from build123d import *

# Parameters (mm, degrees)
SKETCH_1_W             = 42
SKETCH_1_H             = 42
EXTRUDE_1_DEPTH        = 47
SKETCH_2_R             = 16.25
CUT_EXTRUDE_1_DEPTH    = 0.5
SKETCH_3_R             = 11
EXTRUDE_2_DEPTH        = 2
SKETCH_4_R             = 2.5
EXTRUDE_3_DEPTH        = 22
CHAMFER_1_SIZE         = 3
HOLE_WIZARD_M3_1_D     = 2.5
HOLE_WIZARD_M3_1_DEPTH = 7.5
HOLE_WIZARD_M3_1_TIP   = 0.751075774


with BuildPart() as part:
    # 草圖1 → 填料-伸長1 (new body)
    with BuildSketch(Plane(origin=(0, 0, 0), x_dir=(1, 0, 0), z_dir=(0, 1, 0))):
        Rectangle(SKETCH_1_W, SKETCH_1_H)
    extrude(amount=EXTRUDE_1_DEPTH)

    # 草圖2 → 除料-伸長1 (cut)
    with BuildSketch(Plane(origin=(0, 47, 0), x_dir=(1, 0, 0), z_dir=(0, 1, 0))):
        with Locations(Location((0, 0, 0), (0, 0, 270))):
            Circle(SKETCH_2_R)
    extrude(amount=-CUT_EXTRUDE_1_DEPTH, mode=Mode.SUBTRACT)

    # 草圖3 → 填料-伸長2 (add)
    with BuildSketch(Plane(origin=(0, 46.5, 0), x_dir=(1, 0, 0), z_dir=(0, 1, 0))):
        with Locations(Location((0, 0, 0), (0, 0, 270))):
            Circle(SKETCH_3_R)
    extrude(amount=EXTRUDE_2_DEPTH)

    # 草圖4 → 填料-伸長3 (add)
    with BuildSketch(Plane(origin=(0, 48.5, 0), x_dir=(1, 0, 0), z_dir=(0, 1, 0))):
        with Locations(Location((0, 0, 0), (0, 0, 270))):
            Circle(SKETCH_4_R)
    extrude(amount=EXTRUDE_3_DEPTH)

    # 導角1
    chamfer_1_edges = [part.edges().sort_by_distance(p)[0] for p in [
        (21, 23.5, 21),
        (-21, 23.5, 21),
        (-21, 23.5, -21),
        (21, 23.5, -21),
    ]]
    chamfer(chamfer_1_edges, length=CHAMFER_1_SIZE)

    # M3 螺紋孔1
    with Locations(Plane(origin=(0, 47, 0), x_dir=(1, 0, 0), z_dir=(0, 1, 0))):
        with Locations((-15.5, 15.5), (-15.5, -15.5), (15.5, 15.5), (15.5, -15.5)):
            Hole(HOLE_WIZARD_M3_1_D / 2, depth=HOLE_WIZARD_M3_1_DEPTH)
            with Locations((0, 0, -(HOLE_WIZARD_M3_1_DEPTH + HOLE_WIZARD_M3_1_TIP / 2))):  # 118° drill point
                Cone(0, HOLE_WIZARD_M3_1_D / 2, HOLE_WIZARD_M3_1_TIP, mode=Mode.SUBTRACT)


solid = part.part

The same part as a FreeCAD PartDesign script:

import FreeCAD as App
import Part
import Sketcher


def edges_at(feature, points):
    """Names of the edges that pass closest to the given points."""
    edges = feature.Shape.Edges
    near = lambda p: min(range(len(edges)), key=lambda i: edges[i].distToShape(Part.Vertex(*p))[0])
    return sorted({f"Edge{near(p) + 1}" for p in points})


def add_polygon(sketch, points):
    """Adds a closed chain of lines whose ends are joined by coincident constraints."""
    first, n = sketch.GeometryCount, len(points)
    for a, b in zip(points, points[1:] + points[:1]):
        sketch.addGeometry(Part.LineSegment(App.Vector(*a, 0), App.Vector(*b, 0)), False)
    for i in range(n):
        sketch.addConstraint(Sketcher.Constraint("Coincident", first + i, 2, first + (i + 1) % n, 1))

doc = App.newDocument("Part")
body = doc.addObject("PartDesign::Body", "Body")

sketch1 = doc.addObject("Sketcher::SketchObject", "Sketch")
body.addObject(sketch1)
sketch1.AttachmentSupport = (doc.XZ_Plane, [""])
sketch1.MapMode = "FlatFace"
add_polygon(sketch1, [(-21, -21), (-21, 21), (21, 21), (21, -21)])
sketch1.addConstraint([
    Sketcher.Constraint("Vertical", 0),
    Sketcher.Constraint("Horizontal", 1),
    Sketcher.Constraint("Vertical", 2),
    Sketcher.Constraint("Horizontal", 3),
    Sketcher.Constraint("Symmetric", 0, 2, 2, 2, -1, 1),
    Sketcher.Constraint("Equal", 3, 0),
    Sketcher.Constraint("DistanceX", 1, 1, 1, 2, 42.0),
])
pad1 = doc.addObject("PartDesign::Pad", "Pad")
body.addObject(pad1)
pad1.Profile = sketch1
pad1.Length = 47
pad1.Reversed = True

sketch2 = doc.addObject("Sketcher::SketchObject", "Sketch001")
body.addObject(sketch2)
sketch2.AttachmentSupport = (doc.XZ_Plane, [""])
sketch2.MapMode = "FlatFace"
sketch2.AttachmentOffset = App.Placement(App.Vector(0, 0, -47), App.Rotation())
sketch2.addGeometry(Part.Circle(App.Vector(0, 0, 0), App.Vector(0, 0, 1), 16), False)
sketch2.addConstraint([
    Sketcher.Constraint("Coincident", 0, 3, -1, 1),
    Sketcher.Constraint("Diameter", 0, 32.5),
])
pocket1 = doc.addObject("PartDesign::Pocket", "Pocket")
body.addObject(pocket1)
pocket1.Profile = sketch2
pocket1.Length = 0.5
pocket1.Reversed = True

sketch3 = doc.addObject("Sketcher::SketchObject", "Sketch002")
body.addObject(sketch3)
sketch3.AttachmentSupport = (doc.XZ_Plane, [""])
sketch3.MapMode = "FlatFace"
sketch3.AttachmentOffset = App.Placement(App.Vector(0, 0, -46.5), App.Rotation())
sketch3.addGeometry(Part.Circle(App.Vector(0, 0, 0), App.Vector(0, 0, 1), 11), False)
sketch3.addConstraint([
    Sketcher.Constraint("Coincident", 0, 3, -1, 1),
    Sketcher.Constraint("Diameter", 0, 22.0),
])
pad2 = doc.addObject("PartDesign::Pad", "Pad001")
body.addObject(pad2)
pad2.Profile = sketch3
pad2.Length = 2
pad2.Reversed = True

sketch4 = doc.addObject("Sketcher::SketchObject", "Sketch003")
body.addObject(sketch4)
sketch4.AttachmentSupport = (doc.XZ_Plane, [""])
sketch4.MapMode = "FlatFace"
sketch4.AttachmentOffset = App.Placement(App.Vector(0, 0, -48.5), App.Rotation())
sketch4.addGeometry(Part.Circle(App.Vector(0, 0, 0), App.Vector(0, 0, 1), 2.5), False)
sketch4.addConstraint([
    Sketcher.Constraint("Coincident", 0, 3, -1, 1),
    Sketcher.Constraint("Diameter", 0, 5.0),
])
pad3 = doc.addObject("PartDesign::Pad", "Pad002")
body.addObject(pad3)
pad3.Profile = sketch4
pad3.Length = 22
pad3.Reversed = True
doc.recompute()

chamfer = doc.addObject("PartDesign::Chamfer", "Chamfer")
body.addObject(chamfer)
chamfer.Base = (pad3, edges_at(pad3, [
    (21, 23.5, 21),
    (-21, 23.5, 21),
    (-21, 23.5, -21),
    (21, 23.5, -21),
]))
chamfer.Size = 3

sketch5 = doc.addObject("Sketcher::SketchObject", "Sketch004")
body.addObject(sketch5)
sketch5.AttachmentSupport = (doc.XZ_Plane, [""])
sketch5.MapMode = "FlatFace"
sketch5.AttachmentOffset = App.Placement(App.Vector(0, 0, -47), App.Rotation())
sketch5.addGeometry([
    Part.Circle(App.Vector(-15.5, -15.5, 0), App.Vector(0, 0, 1), 1.2),
    Part.Circle(App.Vector(-15.5, 15.5, 0), App.Vector(0, 0, 1), 1.2),
    Part.Circle(App.Vector(15.5, -15.5, 0), App.Vector(0, 0, 1), 1.2),
    Part.Circle(App.Vector(15.5, 15.5, 0), App.Vector(0, 0, 1), 1.2),
], False)
sketch5.addConstraint([
    Sketcher.Constraint("Equal", 0, 1),
    Sketcher.Constraint("Equal", 1, 2),
    Sketcher.Constraint("Equal", 2, 3),
    Sketcher.Constraint("Symmetric", 1, 3, 2, 3, -1, 1),
    Sketcher.Constraint("Symmetric", 0, 3, 3, 3, -1, 1),
    Sketcher.Constraint("Symmetric", 0, 3, 2, 3, -2),
    Sketcher.Constraint("Diameter", 0, 2.5),
    Sketcher.Constraint("DistanceY", 0, 3, 1, 3, 31.0),
    Sketcher.Constraint("DistanceX", 0, 3, 2, 3, 31.0),
])
doc.recompute()
hole = doc.addObject("PartDesign::Hole", "Hole")
body.addObject(hole)
hole.Profile = sketch5
hole.ThreadType = "None"
hole.Diameter = 2.5
hole.DepthType = "Dimension"
hole.Depth = 7.5
hole.DrillPoint = "Angled"
hole.DrillPointAngle = 118
hole.Reversed = True

doc.recompute()
